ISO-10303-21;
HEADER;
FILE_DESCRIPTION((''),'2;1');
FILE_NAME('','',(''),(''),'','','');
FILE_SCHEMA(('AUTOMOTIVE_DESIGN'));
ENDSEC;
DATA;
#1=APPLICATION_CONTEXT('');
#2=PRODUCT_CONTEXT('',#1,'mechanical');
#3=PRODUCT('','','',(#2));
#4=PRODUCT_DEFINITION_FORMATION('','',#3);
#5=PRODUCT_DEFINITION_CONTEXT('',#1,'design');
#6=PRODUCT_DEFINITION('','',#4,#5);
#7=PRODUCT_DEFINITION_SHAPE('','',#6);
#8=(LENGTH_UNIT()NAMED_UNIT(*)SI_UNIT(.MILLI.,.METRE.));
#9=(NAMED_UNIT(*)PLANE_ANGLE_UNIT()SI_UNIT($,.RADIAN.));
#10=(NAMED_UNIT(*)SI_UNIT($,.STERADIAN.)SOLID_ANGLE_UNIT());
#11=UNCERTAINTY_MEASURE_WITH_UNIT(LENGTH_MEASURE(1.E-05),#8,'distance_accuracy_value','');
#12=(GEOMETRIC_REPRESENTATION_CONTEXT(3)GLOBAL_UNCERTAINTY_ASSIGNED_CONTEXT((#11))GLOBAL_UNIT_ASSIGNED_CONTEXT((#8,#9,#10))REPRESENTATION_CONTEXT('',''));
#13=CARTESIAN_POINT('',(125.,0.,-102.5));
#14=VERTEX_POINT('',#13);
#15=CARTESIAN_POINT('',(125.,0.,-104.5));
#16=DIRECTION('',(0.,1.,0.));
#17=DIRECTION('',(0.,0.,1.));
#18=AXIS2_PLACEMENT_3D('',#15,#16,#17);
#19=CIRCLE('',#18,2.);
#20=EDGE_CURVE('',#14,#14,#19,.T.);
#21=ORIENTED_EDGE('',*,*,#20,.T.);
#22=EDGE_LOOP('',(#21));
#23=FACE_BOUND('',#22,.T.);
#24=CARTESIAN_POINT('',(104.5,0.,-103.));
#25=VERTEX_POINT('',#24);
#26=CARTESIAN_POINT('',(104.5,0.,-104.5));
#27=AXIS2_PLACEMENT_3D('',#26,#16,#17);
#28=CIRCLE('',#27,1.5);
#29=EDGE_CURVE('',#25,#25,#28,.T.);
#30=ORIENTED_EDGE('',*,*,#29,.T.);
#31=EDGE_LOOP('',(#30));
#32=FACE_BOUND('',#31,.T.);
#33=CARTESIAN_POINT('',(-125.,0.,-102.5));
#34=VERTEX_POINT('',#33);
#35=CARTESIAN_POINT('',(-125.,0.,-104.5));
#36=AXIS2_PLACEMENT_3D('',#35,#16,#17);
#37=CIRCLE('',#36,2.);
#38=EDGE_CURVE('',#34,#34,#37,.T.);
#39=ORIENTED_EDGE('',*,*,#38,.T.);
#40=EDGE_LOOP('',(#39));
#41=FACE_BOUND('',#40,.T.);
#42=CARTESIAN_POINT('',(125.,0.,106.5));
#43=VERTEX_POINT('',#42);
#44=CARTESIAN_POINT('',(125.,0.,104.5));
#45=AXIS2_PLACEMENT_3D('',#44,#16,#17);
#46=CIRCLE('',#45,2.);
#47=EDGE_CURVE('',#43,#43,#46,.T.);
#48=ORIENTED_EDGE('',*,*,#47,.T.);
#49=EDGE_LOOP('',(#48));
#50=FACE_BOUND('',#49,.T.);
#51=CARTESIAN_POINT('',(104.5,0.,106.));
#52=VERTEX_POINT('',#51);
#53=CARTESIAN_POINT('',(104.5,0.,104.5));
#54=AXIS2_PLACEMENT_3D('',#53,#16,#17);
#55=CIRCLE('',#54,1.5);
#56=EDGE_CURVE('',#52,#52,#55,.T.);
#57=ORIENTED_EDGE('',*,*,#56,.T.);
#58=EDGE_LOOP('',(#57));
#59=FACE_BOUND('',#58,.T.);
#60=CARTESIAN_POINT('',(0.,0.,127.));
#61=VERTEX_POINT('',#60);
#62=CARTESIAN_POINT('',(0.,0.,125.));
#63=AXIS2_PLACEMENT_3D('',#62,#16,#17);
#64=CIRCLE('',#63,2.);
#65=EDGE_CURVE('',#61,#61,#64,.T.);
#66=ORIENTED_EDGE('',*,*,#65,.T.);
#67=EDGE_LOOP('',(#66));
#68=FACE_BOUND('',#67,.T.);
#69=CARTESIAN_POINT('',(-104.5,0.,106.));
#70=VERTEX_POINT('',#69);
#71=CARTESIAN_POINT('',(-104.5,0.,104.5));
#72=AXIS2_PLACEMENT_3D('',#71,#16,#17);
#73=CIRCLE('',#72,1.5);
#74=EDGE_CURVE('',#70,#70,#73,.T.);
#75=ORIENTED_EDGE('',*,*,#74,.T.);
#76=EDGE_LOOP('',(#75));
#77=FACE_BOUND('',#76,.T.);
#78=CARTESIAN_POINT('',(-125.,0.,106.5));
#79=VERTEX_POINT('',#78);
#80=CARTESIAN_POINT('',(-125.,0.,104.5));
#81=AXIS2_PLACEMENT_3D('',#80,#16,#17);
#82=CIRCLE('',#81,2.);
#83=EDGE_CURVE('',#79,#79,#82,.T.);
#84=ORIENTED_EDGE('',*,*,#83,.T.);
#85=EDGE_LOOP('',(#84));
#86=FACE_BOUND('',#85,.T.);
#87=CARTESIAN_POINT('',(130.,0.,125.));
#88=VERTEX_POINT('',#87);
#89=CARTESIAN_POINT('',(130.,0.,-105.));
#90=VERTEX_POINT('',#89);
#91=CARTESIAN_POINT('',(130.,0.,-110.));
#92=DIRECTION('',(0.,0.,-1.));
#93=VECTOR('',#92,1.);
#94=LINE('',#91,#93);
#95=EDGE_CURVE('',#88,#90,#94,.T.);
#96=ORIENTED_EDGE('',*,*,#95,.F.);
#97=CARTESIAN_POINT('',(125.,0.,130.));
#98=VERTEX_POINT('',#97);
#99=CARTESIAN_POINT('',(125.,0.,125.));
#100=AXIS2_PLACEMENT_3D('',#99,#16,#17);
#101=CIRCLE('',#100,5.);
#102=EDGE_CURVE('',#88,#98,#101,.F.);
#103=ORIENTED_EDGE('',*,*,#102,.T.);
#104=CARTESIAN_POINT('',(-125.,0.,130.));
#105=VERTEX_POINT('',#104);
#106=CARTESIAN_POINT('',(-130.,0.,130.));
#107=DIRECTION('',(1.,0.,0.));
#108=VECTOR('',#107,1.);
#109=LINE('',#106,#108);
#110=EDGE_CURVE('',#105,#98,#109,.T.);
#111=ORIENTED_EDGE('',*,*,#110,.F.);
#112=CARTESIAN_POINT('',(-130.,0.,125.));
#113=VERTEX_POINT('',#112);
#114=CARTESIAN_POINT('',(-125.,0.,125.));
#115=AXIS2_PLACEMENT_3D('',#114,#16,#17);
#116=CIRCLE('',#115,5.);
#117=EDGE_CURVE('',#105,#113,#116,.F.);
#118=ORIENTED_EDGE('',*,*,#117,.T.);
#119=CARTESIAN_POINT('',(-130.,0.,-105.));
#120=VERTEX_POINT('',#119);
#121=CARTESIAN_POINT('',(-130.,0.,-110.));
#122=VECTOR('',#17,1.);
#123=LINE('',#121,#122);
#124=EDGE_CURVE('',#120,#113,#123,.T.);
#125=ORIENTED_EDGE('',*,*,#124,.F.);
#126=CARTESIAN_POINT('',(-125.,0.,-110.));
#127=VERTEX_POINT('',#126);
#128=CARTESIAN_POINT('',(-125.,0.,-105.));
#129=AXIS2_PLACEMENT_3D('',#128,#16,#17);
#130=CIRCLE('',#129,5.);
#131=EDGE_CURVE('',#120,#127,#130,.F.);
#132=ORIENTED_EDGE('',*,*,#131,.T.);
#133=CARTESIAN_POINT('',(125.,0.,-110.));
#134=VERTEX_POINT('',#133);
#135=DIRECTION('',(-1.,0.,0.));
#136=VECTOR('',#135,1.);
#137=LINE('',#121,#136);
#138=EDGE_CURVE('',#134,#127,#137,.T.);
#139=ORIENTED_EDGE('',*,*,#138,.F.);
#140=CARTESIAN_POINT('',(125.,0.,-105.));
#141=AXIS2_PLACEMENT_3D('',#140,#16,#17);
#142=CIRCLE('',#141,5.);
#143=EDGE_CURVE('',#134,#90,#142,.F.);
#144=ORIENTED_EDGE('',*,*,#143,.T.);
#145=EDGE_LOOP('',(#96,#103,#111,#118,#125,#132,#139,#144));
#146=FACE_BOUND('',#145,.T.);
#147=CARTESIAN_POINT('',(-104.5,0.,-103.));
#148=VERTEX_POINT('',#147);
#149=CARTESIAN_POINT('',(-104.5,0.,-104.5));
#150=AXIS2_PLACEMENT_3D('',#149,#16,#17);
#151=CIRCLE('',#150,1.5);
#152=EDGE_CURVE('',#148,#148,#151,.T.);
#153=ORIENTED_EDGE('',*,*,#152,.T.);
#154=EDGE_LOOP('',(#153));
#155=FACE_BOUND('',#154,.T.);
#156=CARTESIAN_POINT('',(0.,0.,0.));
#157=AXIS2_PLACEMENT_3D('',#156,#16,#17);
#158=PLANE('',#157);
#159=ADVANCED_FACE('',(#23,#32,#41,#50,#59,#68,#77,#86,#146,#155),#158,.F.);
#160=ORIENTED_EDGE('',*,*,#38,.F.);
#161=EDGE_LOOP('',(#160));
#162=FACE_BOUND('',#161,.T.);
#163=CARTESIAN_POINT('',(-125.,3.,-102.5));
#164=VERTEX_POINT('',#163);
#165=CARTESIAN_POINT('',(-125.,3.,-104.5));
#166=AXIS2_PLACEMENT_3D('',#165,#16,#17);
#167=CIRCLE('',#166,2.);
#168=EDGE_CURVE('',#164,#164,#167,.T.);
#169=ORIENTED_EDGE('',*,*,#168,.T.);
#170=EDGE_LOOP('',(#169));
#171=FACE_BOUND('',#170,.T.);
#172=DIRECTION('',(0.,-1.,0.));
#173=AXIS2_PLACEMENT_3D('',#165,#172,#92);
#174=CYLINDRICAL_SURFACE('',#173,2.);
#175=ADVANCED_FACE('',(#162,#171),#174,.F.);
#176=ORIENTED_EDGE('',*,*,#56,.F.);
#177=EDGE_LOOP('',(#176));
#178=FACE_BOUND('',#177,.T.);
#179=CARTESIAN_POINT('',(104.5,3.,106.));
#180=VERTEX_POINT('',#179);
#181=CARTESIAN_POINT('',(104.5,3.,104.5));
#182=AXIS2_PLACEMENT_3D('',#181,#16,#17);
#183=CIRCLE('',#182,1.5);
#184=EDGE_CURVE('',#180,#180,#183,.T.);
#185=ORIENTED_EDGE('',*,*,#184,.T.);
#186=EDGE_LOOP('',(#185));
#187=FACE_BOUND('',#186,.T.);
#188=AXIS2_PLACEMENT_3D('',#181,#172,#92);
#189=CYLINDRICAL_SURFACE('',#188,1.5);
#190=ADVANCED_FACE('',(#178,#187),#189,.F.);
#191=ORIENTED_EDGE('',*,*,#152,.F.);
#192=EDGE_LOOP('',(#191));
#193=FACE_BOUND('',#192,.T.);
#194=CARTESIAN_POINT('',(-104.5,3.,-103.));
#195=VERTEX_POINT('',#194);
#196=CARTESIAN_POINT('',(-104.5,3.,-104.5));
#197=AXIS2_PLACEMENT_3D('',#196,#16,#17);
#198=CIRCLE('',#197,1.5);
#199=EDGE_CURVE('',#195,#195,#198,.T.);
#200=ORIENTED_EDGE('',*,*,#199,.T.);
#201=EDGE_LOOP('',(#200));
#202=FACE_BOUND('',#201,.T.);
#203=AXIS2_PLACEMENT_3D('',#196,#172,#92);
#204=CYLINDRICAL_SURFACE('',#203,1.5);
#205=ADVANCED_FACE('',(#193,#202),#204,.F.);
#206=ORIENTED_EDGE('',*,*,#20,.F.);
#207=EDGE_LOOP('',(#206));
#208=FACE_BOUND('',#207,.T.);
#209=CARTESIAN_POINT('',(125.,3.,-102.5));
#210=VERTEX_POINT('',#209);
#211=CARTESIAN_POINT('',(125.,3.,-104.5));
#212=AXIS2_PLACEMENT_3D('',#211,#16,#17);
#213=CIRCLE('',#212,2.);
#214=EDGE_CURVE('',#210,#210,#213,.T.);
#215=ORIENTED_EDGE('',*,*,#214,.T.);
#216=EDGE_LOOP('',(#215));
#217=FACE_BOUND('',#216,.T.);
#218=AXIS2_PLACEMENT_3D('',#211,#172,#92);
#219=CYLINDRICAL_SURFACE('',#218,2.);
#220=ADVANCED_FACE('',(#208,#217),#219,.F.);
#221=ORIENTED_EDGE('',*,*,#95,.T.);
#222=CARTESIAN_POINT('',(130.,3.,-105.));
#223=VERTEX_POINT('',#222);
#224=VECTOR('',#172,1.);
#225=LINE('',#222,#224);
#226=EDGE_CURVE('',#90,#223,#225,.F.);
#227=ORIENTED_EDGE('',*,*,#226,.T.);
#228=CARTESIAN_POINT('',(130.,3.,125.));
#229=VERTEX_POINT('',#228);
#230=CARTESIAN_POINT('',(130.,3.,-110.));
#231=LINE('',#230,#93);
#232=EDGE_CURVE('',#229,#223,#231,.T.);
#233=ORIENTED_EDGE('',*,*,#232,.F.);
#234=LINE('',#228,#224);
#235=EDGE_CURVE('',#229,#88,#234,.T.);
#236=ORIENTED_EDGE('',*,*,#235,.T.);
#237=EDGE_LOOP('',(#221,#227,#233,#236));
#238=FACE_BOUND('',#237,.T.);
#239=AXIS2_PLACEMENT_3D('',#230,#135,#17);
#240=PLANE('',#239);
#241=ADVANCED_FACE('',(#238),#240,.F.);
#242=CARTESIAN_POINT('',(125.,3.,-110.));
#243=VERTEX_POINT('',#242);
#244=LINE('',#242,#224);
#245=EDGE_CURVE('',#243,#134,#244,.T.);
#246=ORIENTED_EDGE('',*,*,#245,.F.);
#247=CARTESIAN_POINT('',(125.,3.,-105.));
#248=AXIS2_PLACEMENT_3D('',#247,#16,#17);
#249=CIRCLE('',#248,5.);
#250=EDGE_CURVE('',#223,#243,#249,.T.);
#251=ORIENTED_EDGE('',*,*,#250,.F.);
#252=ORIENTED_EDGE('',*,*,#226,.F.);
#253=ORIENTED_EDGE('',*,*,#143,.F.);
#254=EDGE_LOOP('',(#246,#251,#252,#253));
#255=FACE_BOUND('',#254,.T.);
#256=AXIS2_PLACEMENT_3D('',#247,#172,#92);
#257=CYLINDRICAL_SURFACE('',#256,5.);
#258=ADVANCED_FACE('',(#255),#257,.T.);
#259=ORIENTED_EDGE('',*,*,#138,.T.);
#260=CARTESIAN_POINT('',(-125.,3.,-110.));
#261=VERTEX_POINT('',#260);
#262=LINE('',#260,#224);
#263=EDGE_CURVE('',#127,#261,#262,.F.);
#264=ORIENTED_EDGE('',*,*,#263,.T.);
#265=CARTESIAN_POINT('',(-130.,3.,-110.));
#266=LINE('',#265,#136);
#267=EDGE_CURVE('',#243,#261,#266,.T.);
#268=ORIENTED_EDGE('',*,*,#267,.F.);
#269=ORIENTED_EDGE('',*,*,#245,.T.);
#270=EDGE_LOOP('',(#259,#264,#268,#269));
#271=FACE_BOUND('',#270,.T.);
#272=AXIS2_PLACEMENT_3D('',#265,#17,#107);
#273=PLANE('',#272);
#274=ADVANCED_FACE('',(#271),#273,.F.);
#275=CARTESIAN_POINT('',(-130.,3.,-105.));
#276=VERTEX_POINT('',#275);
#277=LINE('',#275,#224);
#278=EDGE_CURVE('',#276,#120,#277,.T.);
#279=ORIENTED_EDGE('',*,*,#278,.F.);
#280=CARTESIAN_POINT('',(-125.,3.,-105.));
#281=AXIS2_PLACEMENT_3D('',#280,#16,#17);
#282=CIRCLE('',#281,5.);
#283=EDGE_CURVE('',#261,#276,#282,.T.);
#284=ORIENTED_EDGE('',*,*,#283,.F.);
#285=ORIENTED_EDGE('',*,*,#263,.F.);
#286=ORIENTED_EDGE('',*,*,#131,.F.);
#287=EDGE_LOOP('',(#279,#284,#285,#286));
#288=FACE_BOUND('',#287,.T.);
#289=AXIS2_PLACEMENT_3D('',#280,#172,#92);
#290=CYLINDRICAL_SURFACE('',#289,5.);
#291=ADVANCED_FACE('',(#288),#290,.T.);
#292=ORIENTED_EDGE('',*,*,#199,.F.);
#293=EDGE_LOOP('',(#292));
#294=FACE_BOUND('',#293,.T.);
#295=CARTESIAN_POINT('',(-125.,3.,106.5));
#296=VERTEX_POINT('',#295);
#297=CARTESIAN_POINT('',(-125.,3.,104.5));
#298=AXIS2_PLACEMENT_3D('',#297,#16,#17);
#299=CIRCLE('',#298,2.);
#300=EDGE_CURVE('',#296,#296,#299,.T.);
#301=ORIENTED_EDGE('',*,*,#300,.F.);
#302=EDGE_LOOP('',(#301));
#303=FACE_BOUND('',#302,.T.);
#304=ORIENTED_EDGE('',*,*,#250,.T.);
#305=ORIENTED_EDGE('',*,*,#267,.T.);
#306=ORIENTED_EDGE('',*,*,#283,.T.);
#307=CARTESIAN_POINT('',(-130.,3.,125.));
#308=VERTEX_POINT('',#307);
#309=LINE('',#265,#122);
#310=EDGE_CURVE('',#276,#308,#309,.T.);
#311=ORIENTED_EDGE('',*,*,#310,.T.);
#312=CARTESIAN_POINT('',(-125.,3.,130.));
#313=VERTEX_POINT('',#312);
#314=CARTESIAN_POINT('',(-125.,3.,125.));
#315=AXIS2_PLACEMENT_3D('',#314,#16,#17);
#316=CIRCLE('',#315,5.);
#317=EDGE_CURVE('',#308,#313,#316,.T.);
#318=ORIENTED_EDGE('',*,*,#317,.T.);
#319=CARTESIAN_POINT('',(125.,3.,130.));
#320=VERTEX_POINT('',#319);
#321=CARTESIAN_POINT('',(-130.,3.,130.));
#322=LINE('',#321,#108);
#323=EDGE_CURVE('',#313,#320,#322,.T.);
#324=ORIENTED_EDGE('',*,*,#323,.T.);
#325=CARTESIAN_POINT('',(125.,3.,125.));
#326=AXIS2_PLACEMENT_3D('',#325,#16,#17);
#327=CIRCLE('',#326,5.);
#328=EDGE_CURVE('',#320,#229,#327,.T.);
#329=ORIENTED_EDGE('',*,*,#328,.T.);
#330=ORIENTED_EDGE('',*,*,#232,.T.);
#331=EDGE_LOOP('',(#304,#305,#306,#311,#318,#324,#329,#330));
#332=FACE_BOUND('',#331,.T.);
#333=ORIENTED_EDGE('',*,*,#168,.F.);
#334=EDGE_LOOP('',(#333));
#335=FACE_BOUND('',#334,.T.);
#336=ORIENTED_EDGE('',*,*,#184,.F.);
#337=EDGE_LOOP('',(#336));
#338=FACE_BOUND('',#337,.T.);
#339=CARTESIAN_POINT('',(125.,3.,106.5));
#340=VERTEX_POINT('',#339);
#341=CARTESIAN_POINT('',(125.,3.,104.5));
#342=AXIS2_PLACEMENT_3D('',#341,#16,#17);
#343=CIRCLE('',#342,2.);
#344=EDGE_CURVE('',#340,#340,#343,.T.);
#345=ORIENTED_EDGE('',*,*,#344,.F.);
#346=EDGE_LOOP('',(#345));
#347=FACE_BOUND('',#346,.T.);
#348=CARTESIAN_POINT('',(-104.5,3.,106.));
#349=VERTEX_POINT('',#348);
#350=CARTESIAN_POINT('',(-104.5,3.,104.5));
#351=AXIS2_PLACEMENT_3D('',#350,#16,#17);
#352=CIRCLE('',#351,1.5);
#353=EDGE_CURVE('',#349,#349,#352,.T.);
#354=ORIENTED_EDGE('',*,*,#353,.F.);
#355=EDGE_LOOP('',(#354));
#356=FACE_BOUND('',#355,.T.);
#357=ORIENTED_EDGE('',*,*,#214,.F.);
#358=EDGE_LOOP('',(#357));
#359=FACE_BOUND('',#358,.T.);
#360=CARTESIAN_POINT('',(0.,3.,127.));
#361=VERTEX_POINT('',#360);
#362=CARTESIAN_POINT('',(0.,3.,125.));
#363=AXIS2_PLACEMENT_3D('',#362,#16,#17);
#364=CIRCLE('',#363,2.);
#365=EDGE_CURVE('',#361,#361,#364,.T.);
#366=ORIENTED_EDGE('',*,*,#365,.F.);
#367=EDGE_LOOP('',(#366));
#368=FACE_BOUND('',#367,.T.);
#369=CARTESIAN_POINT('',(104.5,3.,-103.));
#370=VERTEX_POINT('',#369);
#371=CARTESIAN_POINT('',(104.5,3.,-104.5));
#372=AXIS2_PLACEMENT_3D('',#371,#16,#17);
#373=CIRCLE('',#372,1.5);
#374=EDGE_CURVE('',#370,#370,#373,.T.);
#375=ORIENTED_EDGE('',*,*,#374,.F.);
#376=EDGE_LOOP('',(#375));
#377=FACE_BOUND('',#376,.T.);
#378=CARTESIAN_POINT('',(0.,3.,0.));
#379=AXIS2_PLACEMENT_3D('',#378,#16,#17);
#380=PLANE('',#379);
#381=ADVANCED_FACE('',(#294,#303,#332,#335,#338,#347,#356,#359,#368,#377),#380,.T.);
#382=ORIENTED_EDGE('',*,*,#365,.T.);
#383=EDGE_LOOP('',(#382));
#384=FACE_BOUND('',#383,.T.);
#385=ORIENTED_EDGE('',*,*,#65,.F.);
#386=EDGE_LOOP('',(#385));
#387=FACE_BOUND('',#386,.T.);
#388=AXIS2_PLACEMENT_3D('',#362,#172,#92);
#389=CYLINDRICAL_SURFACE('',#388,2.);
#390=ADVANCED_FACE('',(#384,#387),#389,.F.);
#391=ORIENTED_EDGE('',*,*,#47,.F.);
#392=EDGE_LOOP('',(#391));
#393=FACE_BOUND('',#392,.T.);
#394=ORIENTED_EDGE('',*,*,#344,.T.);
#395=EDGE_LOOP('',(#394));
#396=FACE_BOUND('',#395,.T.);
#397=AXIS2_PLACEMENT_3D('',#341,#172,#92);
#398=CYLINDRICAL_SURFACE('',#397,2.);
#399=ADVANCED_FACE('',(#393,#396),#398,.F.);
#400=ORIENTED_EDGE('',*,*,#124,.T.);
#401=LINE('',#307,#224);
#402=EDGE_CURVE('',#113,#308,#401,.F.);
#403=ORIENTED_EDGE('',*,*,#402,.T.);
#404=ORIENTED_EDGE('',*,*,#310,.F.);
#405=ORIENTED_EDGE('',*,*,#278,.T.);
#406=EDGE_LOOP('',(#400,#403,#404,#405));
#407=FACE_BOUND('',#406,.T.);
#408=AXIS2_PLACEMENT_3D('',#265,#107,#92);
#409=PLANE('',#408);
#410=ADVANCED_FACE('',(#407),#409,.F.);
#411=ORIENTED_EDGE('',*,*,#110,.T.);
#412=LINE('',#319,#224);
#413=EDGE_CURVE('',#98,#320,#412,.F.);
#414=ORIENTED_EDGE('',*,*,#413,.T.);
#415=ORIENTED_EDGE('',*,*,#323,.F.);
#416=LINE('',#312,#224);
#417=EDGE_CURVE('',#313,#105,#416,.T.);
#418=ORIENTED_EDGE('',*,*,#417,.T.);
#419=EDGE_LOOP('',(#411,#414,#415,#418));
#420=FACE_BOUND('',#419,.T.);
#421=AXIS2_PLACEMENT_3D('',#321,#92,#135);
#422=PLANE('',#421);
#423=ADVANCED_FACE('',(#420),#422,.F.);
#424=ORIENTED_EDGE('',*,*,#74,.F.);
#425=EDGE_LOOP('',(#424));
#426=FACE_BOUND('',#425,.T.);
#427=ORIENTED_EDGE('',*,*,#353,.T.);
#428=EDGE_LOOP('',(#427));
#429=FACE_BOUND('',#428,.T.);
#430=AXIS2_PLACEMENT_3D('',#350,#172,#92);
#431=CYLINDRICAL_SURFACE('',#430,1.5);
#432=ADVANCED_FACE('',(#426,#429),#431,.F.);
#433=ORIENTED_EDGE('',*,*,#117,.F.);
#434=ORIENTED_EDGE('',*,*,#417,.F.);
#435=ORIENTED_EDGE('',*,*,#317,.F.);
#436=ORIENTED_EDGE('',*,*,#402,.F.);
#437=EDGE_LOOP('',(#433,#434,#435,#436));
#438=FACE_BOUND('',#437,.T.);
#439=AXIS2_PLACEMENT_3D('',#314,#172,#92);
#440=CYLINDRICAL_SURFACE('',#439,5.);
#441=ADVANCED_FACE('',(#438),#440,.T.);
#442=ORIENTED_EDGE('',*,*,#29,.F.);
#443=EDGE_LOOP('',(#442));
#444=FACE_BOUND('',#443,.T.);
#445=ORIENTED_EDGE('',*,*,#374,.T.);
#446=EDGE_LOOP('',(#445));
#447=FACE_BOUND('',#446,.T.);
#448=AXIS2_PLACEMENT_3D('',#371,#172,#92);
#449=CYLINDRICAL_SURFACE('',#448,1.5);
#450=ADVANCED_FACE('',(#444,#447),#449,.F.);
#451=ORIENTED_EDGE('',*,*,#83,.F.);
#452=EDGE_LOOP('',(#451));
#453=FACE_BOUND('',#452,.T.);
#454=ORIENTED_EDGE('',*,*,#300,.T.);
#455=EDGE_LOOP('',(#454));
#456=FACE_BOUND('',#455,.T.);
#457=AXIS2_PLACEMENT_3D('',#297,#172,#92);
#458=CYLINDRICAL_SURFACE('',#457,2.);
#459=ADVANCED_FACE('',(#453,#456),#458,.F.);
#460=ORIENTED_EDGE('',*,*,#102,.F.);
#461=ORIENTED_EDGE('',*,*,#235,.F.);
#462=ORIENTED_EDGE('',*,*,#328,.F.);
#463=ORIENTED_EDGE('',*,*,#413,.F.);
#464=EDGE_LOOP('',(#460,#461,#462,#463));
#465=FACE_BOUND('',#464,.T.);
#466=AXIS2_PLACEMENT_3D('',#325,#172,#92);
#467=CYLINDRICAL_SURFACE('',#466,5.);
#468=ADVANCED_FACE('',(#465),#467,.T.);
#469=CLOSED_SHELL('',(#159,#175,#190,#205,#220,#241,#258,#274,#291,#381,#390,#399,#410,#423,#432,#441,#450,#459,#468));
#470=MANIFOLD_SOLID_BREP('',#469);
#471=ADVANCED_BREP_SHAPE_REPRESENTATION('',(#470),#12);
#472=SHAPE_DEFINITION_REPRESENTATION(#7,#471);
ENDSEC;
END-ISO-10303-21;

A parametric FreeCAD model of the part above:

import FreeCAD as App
import Part
import Sketcher
from FreeCAD import Vector


def edges_at(feature, points):
    """Names of the edges that pass closest to the given points."""
    edges = feature.Shape.Edges
    near = lambda p: min(range(len(edges)), key=lambda i: edges[i].distToShape(Part.Vertex(*p))[0])
    return sorted({f"Edge{near(p) + 1}" for p in points})

doc = App.newDocument("Part")
body = doc.addObject("PartDesign::Body", "Body")

# Sketch on XZ plane
sketch1 = doc.addObject("Sketcher::SketchObject", "Sketch")
body.addObject(sketch1)
sketch1.AttachmentSupport = (doc.XZ_Plane, [""])
sketch1.MapMode = "FlatFace"
sketch1.addGeometry([
    Part.LineSegment(Vector(-130, -110, 0), Vector(-130, 130, 0)),  # 0
    Part.LineSegment(Vector(-130, 130, 0), Vector(130, 130, 0)),  # 1
    Part.LineSegment(Vector(130, 130, 0), Vector(130, -110, 0)),  # 2
    Part.LineSegment(Vector(130, -110, 0), Vector(-130, -110, 0)),  # 3
    Part.Circle(Vector(-125, 104.5, 0), Vector(0, 0, 1), 2),  # 4
    Part.Circle(Vector(-104.5, 104.5, 0), Vector(0, 0, 1), 1.5),  # 5
    Part.Circle(Vector(0, 125, 0), Vector(0, 0, 1), 2),  # 6
    Part.Circle(Vector(104.5, 104.5, 0), Vector(0, 0, 1), 1.5),  # 7
    Part.Circle(Vector(125, 104.5, 0), Vector(0, 0, 1), 2),  # 8
    Part.Circle(Vector(-125, -104.5, 0), Vector(0, 0, 1), 2),  # 9
    Part.Circle(Vector(-104.5, -104.5, 0), Vector(0, 0, 1), 1.5),  # 10
    Part.Circle(Vector(104.5, -104.5, 0), Vector(0, 0, 1), 1.5),  # 11
    Part.Circle(Vector(125, -104.5, 0), Vector(0, 0, 1), 2),  # 12
], False)
sketch1.addConstraint([
    Sketcher.Constraint("Coincident", 0, 2, 1, 1),
    Sketcher.Constraint("Coincident", 1, 2, 2, 1),
    Sketcher.Constraint("Coincident", 2, 2, 3, 1),
    Sketcher.Constraint("Coincident", 3, 2, 0, 1),
    Sketcher.Constraint("Vertical", 0),
    Sketcher.Constraint("Horizontal", 1),
    Sketcher.Constraint("Vertical", 2),
    Sketcher.Constraint("Horizontal", 3),
    Sketcher.Constraint("Equal", 4, 6),
    Sketcher.Constraint("Equal", 5, 7),
    Sketcher.Constraint("Equal", 6, 8),
    Sketcher.Constraint("Equal", 8, 9),
    Sketcher.Constraint("Equal", 7, 10),
    Sketcher.Constraint("Equal", 10, 11),
    Sketcher.Constraint("Equal", 9, 12),
    Sketcher.Constraint("Symmetric", 8, 3, 9, 3, -1, 1),
    Sketcher.Constraint("Symmetric", 7, 3, 10, 3, -1, 1),
    Sketcher.Constraint("Symmetric", 5, 3, 11, 3, -1, 1),
    Sketcher.Constraint("Symmetric", 4, 3, 12, 3, -1, 1),
    Sketcher.Constraint("Symmetric", 5, 3, 7, 3, -2),
    Sketcher.Constraint("Symmetric", 4, 3, 8, 3, -2),
    Sketcher.Constraint("PointOnObject", 6, 3, -2),
    Sketcher.Constraint("Horizontal", 4, 3, 5, 3),
    Sketcher.Constraint("Diameter", 4, 4.0),
    Sketcher.Constraint("Diameter", 5, 3.0),
    Sketcher.Constraint("DistanceX", 1, 1, 1, 2, 260.0),
    Sketcher.Constraint("DistanceY", 0, 1, 0, 2, 240.0),
    Sketcher.Constraint("DistanceX", 4, 3, -1, 1, 125.0),
    Sketcher.Constraint("DistanceY", -1, 1, 6, 3, 125.0),
    Sketcher.Constraint("DistanceX", 0, 2, -1, 1, 130.0),
    Sketcher.Constraint("DistanceY", -1, 1, 0, 2, 130.0),
    Sketcher.Constraint("DistanceX", 5, 3, 7, 3, 209.0),
    Sketcher.Constraint("DistanceY", 9, 3, 4, 3, 209.0),
])
pad1 = doc.addObject("PartDesign::Pad", "Pad")
body.addObject(pad1)
pad1.Profile = sketch1
pad1.Length = 3
pad1.Reversed = True
doc.recompute()

fillet = doc.addObject("PartDesign::Fillet", "Fillet")
body.addObject(fillet)
fillet.Base = (pad1, edges_at(pad1, [
    (-130, 1.5, -110),
    (130, 1.5, -110),
    (130, 1.5, 130),
    (-130, 1.5, 130),
]))
fillet.Radius = 5

doc.recompute()
